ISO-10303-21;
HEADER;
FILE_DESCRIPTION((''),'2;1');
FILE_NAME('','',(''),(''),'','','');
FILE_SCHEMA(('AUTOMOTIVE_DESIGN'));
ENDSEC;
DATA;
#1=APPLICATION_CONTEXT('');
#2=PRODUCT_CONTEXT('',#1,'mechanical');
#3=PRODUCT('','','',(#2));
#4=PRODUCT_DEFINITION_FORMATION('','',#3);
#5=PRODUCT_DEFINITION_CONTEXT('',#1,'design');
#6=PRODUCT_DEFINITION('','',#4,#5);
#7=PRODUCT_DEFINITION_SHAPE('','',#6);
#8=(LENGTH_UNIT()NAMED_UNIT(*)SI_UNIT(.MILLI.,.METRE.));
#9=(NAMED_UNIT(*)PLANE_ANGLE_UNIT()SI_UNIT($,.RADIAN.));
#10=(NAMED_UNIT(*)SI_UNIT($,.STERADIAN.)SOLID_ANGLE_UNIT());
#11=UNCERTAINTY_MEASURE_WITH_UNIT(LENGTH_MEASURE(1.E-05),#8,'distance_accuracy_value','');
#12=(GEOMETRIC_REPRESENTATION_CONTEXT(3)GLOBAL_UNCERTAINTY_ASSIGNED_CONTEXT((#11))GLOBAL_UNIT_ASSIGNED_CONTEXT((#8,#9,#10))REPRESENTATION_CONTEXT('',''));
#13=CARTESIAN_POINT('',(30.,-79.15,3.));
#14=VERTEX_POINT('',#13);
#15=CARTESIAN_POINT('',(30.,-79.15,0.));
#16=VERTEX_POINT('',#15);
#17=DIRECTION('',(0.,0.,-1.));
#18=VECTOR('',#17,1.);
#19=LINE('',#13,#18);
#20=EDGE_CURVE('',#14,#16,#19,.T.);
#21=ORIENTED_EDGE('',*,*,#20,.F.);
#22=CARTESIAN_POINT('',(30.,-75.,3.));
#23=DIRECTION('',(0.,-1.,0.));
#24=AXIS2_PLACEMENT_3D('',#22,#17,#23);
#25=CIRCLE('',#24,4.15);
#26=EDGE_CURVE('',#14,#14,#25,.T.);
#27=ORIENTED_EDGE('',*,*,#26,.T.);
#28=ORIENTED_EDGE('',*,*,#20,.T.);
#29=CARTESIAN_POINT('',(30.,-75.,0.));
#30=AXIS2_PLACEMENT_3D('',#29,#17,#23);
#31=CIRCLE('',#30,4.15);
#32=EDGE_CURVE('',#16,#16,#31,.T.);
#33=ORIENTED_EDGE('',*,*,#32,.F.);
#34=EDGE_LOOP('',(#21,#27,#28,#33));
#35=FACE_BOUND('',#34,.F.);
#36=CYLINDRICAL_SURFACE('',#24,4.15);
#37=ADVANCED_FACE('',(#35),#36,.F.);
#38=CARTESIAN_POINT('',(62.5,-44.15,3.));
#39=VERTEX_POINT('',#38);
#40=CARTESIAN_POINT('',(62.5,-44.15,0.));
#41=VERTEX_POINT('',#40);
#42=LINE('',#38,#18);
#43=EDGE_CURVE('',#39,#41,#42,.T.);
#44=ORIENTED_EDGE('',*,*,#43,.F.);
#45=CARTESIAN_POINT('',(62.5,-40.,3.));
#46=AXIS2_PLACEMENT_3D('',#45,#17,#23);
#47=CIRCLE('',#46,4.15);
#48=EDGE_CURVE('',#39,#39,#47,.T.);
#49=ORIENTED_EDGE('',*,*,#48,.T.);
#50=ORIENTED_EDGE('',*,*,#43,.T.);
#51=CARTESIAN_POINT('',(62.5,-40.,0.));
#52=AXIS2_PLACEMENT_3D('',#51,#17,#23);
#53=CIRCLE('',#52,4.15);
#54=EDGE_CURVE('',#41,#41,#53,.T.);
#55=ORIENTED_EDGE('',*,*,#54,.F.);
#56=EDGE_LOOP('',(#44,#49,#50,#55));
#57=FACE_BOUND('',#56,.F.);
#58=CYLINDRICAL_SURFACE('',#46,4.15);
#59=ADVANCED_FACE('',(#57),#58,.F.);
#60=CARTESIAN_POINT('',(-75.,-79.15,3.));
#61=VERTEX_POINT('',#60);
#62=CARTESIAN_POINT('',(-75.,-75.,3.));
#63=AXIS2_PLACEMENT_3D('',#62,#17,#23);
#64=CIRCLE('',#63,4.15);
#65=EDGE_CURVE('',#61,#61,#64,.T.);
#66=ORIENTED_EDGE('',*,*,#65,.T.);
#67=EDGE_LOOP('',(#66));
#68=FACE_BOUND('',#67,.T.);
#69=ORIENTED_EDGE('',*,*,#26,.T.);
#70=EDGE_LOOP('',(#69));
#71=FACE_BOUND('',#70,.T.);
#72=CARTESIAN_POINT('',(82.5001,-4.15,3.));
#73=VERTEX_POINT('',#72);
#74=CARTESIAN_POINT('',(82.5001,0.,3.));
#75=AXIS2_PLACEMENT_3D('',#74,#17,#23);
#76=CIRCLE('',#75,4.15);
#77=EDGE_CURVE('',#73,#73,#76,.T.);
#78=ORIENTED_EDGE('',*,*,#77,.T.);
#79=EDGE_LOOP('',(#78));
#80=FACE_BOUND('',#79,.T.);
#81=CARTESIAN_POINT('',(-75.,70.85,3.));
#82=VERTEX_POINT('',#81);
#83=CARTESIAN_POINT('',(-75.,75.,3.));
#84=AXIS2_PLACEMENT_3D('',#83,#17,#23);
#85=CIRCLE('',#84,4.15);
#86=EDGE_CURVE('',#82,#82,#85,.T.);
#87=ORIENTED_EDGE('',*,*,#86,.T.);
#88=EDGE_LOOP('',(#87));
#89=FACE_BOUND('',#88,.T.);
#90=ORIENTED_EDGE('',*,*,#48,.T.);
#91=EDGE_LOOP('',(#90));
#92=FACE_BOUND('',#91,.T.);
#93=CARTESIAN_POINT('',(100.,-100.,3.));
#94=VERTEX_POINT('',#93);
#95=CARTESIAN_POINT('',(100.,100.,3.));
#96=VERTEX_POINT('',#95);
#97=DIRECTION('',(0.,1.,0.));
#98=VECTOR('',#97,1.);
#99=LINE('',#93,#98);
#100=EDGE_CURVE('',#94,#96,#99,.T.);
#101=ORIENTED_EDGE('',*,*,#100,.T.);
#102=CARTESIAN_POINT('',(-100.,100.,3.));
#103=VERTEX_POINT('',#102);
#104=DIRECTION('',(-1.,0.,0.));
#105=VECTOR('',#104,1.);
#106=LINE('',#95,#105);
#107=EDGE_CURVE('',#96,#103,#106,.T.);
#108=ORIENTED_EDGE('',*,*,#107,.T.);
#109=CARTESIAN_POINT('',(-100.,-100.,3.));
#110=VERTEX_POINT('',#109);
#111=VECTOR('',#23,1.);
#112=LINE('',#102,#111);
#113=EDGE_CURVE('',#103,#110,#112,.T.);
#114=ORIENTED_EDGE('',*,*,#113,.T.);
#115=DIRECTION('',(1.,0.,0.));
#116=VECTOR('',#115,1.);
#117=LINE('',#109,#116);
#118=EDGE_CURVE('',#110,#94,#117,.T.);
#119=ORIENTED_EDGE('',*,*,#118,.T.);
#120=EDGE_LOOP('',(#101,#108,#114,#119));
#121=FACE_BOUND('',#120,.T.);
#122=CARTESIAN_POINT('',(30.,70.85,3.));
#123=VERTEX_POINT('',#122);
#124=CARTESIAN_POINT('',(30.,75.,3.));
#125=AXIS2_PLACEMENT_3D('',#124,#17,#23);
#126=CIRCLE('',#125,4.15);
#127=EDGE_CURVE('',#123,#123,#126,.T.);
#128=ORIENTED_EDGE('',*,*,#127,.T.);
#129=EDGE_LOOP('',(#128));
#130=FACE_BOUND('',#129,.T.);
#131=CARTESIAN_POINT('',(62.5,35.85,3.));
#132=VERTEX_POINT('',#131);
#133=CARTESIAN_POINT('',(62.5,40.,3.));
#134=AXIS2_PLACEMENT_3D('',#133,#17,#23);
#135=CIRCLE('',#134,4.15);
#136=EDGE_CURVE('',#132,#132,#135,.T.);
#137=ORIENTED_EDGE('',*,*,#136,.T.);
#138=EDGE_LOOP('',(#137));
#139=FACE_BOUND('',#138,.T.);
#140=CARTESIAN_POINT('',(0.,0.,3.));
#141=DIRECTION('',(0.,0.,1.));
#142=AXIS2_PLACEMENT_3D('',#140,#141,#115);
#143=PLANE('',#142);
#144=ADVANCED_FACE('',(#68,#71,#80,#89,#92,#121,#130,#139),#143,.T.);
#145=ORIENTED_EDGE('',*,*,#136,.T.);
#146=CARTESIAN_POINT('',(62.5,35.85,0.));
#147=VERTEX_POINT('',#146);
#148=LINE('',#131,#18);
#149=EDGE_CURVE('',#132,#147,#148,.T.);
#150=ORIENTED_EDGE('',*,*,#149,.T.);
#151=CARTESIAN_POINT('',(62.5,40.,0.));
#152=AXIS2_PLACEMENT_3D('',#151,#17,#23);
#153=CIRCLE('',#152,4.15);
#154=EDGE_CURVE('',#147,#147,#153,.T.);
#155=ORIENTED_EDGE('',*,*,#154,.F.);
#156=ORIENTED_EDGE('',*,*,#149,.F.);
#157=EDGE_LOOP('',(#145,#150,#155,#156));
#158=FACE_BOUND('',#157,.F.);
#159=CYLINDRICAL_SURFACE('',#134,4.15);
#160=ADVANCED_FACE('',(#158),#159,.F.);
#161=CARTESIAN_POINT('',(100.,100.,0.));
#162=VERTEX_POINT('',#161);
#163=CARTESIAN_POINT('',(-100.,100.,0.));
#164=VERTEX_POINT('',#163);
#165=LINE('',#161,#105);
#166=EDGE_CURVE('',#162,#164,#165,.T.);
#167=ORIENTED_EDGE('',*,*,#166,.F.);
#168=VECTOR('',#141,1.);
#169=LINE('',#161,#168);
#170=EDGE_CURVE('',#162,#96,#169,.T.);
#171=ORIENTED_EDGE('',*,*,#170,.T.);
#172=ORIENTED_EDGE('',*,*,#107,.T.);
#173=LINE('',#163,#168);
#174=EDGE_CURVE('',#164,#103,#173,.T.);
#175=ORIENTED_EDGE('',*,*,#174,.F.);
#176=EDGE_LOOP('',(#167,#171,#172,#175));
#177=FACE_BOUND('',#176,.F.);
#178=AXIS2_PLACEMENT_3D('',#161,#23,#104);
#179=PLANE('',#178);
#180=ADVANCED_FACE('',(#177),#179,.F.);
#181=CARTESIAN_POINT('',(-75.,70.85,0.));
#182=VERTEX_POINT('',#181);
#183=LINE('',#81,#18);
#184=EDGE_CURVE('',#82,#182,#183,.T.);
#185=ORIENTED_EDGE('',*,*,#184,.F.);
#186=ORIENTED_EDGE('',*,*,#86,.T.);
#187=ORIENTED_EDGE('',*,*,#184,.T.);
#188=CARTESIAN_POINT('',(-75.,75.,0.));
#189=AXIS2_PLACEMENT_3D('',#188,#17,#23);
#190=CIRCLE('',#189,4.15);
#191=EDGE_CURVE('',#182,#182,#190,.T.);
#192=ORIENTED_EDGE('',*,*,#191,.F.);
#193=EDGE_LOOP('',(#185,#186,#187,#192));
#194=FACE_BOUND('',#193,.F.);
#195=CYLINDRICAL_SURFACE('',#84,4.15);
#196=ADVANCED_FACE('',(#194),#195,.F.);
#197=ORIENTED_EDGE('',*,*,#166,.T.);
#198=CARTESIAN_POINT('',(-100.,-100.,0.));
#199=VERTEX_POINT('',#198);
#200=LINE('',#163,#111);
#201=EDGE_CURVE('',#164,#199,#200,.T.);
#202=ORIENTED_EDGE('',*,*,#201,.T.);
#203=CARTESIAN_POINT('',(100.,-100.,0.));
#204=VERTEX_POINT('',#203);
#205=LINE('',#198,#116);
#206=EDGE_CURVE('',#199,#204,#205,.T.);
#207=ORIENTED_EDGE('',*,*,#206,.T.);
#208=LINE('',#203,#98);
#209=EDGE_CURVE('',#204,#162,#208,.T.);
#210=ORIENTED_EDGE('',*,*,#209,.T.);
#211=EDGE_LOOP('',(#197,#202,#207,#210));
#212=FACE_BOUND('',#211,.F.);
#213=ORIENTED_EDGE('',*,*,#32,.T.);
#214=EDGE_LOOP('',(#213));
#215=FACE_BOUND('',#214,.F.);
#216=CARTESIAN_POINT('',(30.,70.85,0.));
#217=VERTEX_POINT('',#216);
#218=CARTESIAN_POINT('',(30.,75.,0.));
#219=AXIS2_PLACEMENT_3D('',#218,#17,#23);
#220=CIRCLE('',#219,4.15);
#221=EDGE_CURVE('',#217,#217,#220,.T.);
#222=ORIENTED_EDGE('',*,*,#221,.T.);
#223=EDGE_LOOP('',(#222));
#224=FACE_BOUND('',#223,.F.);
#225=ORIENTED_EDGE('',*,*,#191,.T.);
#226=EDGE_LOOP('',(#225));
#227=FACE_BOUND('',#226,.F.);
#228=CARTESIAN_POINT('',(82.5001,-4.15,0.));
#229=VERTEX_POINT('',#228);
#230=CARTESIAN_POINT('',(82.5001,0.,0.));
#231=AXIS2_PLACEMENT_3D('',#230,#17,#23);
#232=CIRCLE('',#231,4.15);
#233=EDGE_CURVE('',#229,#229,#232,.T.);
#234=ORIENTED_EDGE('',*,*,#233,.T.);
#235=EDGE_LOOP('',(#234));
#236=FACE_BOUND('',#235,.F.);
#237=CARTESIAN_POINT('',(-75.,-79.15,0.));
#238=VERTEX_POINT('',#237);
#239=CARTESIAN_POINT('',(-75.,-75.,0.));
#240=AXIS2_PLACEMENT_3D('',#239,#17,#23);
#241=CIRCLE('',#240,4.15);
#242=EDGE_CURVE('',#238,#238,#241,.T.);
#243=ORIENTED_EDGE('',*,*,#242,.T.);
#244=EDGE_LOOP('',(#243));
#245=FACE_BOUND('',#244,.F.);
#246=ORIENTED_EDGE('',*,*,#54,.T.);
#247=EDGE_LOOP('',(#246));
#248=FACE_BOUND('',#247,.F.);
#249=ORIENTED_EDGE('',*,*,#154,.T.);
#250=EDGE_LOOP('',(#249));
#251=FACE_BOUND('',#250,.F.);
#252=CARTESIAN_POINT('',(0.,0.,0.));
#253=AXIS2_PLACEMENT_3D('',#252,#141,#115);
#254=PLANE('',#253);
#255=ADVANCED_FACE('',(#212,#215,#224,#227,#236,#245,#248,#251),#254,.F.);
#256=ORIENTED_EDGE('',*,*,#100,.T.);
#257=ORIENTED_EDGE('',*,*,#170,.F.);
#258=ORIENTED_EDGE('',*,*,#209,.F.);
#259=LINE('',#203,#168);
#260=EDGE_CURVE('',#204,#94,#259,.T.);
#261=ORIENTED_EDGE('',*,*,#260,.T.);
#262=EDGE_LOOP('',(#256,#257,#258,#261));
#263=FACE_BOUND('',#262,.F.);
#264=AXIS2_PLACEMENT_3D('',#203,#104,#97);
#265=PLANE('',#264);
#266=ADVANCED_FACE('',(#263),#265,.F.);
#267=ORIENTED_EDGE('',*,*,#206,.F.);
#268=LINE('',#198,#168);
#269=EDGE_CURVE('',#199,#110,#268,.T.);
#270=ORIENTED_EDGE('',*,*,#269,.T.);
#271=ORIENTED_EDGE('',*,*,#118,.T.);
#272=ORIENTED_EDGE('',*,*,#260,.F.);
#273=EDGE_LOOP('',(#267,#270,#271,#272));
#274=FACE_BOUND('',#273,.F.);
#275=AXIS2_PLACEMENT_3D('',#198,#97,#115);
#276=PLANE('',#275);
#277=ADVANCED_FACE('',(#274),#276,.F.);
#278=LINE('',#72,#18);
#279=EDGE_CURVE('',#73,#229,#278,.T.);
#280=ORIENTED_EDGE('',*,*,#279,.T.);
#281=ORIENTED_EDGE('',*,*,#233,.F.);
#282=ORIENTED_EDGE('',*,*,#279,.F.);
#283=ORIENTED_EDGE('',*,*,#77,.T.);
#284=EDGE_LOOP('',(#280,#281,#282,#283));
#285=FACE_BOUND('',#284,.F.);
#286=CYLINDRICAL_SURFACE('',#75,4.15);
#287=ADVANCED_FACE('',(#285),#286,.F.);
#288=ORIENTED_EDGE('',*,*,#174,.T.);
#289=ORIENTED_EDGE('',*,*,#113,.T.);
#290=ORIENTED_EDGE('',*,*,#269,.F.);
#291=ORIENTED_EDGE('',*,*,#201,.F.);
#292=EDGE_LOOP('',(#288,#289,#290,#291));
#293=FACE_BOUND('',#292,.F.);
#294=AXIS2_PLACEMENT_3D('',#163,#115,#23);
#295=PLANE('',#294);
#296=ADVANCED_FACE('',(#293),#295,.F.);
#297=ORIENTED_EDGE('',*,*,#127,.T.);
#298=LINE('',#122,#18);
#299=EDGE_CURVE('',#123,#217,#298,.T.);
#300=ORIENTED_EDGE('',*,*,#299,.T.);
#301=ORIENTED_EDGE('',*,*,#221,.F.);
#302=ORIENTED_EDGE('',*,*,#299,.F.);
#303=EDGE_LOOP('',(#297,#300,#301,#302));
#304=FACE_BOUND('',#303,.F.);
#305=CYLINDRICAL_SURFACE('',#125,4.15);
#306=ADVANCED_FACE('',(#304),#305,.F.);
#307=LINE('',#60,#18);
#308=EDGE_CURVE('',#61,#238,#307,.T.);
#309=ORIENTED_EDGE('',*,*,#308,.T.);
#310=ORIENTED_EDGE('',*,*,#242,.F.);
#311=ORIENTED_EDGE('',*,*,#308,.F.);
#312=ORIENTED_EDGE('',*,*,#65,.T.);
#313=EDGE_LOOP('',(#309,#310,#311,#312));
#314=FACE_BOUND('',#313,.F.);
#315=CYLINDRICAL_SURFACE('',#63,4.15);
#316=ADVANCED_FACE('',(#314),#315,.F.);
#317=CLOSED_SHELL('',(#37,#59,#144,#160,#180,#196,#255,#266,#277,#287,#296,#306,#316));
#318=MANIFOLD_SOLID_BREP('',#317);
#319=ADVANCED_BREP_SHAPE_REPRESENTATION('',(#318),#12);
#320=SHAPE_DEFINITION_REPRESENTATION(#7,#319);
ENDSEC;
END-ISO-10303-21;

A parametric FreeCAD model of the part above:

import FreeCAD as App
import Part
import Sketcher
from FreeCAD import Vector
Q = App.Units.Quantity


def add_polygon(sketch, points):
    """Adds a closed chain of lines whose ends are joined by coincident constraints."""
    first, n = sketch.GeometryCount, len(points)
    for a, b in zip(points, points[1:] + points[:1]):
        sketch.addGeometry(Part.LineSegment(App.Vector(*a, 0), App.Vector(*b, 0)), False)
    for i in range(n):
        sketch.addConstraint(Sketcher.Constraint("Coincident", first + i, 2, first + (i + 1) % n, 1))

doc = App.newDocument("Part")
params = doc.addObject("Spreadsheet::Sheet", "Params")
for row, (alias, value) in enumerate([
    ("sketch1_width", "200 mm"),
    ("pad1_length", "3 mm"),
    ("sketch2_diameter", "8.3 mm"),
    ("hole_diameter", "8.3 mm"),
], start=1):
    params.set(f"A{row}", alias)
    params.set(f"B{row}", "=" + value)
    params.setAlias(f"B{row}", alias)

body = doc.addObject("PartDesign::Body", "Body")

# Sketch on XY plane
sketch1 = body.newObject("Sketcher::SketchObject", "Sketch")
sketch1.AttachmentSupport = (doc.getObject("XY_Plane"), [""])
sketch1.MapMode = "FlatFace"
add_polygon(sketch1, [(-100, 100), (-100, -100), (100, -100), (100, 100)])  # lines 0-3
sketch1.addConstraint([
    Sketcher.Constraint("Vertical", 0),
    Sketcher.Constraint("Horizontal", 1),
    Sketcher.Constraint("Vertical", 2),
    Sketcher.Constraint("Horizontal", 3),
    Sketcher.Constraint("Symmetric", 0, 2, 2, 2, -1, 1),
    Sketcher.Constraint("Equal", 3, 0),
    Sketcher.Constraint("DistanceX", 1, 1, 1, 2, Q("200 mm")),
])
sketch1.setExpression("Constraints[10]", "Params.sketch1_width")
pad1 = body.newObject("PartDesign::Pad", "Pad")
pad1.Profile = sketch1
pad1.setExpression("Length", "Params.pad1_length")

# Sketch on XY plane
sketch2 = body.newObject("Sketcher::SketchObject", "Sketch001")
sketch2.AttachmentSupport = (doc.getObject("XY_Plane"), [""])
sketch2.MapMode = "FlatFace"
sketch2.AttachmentOffset = App.Placement(Vector(0, 0, 3), App.Rotation())
sketch2.addGeometry([
    Part.Circle(Vector(-75, 75, 0), Vector(0, 0, 1), 4.2),  # 0
    Part.Circle(Vector(30, 75, 0), Vector(0, 0, 1), 4.2),  # 1
    Part.Circle(Vector(62.5, 40, 0), Vector(0, 0, 1), 4.2),  # 2
    Part.Circle(Vector(82.5, 0, 0), Vector(0, 0, 1), 4.2),  # 3
    Part.Circle(Vector(62.5, -40, 0), Vector(0, 0, 1), 4.2),  # 4
    Part.Circle(Vector(30, -75, 0), Vector(0, 0, 1), 4.2),  # 5
    Part.Circle(Vector(-75, -75, 0), Vector(0, 0, 1), 4.2),  # 6
], False)
sketch2.addConstraint([
    Sketcher.Constraint("Equal", 0, 1),
    Sketcher.Constraint("Equal", 1, 2),
    Sketcher.Constraint("Equal", 2, 3),
    Sketcher.Constraint("Equal", 3, 4),
    Sketcher.Constraint("Equal", 4, 5),
    Sketcher.Constraint("Equal", 5, 6),
    Sketcher.Constraint("Symmetric", 2, 3, 4, 3, -1),
    Sketcher.Constraint("Symmetric", 1, 3, 5, 3, -1),
    Sketcher.Constraint("Symmetric", 0, 3, 6, 3, -1),
    Sketcher.Constraint("PointOnObject", 3, 3, -1),
    Sketcher.Constraint("Horizontal", 0, 3, 1, 3),
    Sketcher.Constraint("Diameter", 0, Q("8.3 mm")),
    Sketcher.Constraint("DistanceX", 0, 3, -1, 1, Q("75 mm")),
    Sketcher.Constraint("DistanceY", -1, 1, 0, 3, Q("75 mm")),
    Sketcher.Constraint("DistanceX", -1, 1, 1, 3, Q("30 mm")),
    Sketcher.Constraint("DistanceY", -1, 1, 2, 3, Q("40 mm")),
    Sketcher.Constraint("DistanceX", 2, 3, 3, 3, Q("20 mm")),
    Sketcher.Constraint("DistanceX", -1, 1, 2, 3, Q("62.5 mm")),
])
sketch2.setExpression("Constraints[11]", "Params.sketch2_diameter")
doc.recompute()
hole = body.newObject("PartDesign::Hole", "Hole")
hole.Profile = sketch2
hole.ThreadType = "None"
hole.setExpression("Diameter", "Params.hole_diameter")
hole.DepthType = "ThroughAll"

doc.recompute()
